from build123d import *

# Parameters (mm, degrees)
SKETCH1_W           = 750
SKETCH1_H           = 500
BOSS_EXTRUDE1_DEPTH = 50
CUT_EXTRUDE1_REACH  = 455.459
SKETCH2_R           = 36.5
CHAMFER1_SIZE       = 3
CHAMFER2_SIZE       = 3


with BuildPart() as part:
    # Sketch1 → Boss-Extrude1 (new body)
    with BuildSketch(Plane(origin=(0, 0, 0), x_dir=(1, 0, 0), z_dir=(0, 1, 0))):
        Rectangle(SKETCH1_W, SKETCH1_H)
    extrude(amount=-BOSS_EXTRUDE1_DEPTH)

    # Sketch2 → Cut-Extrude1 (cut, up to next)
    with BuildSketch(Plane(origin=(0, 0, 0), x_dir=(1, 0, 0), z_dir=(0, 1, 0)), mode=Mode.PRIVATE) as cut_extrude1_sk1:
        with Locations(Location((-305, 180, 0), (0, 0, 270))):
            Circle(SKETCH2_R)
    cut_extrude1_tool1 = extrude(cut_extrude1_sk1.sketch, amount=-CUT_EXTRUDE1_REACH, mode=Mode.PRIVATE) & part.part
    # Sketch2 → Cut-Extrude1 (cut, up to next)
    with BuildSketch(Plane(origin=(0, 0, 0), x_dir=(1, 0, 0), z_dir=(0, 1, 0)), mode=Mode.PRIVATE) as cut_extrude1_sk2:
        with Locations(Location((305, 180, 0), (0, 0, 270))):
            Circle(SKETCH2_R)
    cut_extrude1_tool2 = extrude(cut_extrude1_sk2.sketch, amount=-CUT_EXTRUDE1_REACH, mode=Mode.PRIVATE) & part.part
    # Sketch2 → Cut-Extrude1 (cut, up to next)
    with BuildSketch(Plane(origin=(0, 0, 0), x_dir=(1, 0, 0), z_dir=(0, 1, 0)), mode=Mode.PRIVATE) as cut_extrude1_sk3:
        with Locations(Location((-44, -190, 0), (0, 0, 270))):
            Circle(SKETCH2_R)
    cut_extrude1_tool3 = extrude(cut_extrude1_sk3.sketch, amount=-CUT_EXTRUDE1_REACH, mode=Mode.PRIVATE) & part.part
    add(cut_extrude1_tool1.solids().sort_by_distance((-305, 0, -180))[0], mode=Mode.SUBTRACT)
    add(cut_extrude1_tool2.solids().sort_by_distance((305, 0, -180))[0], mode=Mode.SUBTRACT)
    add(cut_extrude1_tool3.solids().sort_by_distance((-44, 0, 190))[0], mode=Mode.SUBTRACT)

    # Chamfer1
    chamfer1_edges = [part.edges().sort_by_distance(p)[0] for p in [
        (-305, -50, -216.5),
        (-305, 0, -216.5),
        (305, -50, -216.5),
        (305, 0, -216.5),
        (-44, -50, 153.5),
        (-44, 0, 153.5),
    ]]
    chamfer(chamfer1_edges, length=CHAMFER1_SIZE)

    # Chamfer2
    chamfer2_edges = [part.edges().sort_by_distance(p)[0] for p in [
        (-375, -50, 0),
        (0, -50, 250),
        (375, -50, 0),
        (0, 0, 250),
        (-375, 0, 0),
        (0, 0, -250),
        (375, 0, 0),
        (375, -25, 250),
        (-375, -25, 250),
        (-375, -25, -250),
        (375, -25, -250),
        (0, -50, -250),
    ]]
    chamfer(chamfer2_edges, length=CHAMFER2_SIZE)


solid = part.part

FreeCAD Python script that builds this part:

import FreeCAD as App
import Part
import Sketcher

V = App.Vector


def edges_at(feature, points):
    """Names of the edges that pass closest to the given points."""
    edges = feature.Shape.Edges
    near = lambda p: min(range(len(edges)), key=lambda i: edges[i].distToShape(Part.Vertex(*p))[0])
    return sorted({f"Edge{near(p) + 1}" for p in points})

doc = App.newDocument("Part")
body = doc.addObject("PartDesign::Body", "Body")

sketch1 = body.newObject("Sketcher::SketchObject", "Sketch")
sketch1.AttachmentSupport = (doc.getObject("XZ_Plane"), [""])
sketch1.MapMode = "FlatFace"
sketch1.addGeometry(Part.LineSegment(V(-375, -250, 0), V(-375, 250, 0)), False)
sketch1.addGeometry(Part.LineSegment(V(-375, 250, 0), V(375, 250, 0)), False)
sketch1.addGeometry(Part.LineSegment(V(375, 250, 0), V(375, -250, 0)), False)
sketch1.addGeometry(Part.LineSegment(V(375, -250, 0), V(-375, -250, 0)), False)
sketch1.addConstraint(Sketcher.Constraint("Coincident", 0, 2, 1, 1))
sketch1.addConstraint(Sketcher.Constraint("Coincident", 1, 2, 2, 1))
sketch1.addConstraint(Sketcher.Constraint("Coincident", 2, 2, 3, 1))
sketch1.addConstraint(Sketcher.Constraint("Coincident", 3, 2, 0, 1))
sketch1.addConstraint(Sketcher.Constraint("Vertical", 0))
sketch1.addConstraint(Sketcher.Constraint("Horizontal", 1))
sketch1.addConstraint(Sketcher.Constraint("Vertical", 2))
sketch1.addConstraint(Sketcher.Constraint("Horizontal", 3))
sketch1.addConstraint(Sketcher.Constraint("Symmetric", 0, 2, 2, 2, -1, 1))
sketch1.addConstraint(Sketcher.Constraint("DistanceX", 1, 1, 1, 2, 750.0))
sketch1.addConstraint(Sketcher.Constraint("DistanceY", 0, 1, 0, 2, 500.0))
pad1 = body.newObject("PartDesign::Pad", "Pad")
pad1.Profile = sketch1
pad1.Length = 50

sketch2 = body.newObject("Sketcher::SketchObject", "Sketch001")
sketch2.AttachmentSupport = (doc.getObject("XZ_Plane"), [""])
sketch2.MapMode = "FlatFace"
sketch2.addGeometry(Part.Circle(V(-305, -180, 0), V(0, 0, 1), 36), False)
sketch2.addConstraint(Sketcher.Constraint("Diameter", 0, 73.0))
sketch2.addConstraint(Sketcher.Constraint("DistanceX", 0, 3, -1, 1, 305.0))
sketch2.addConstraint(Sketcher.Constraint("DistanceY", 0, 3, -1, 1, 180.0))
pocket1 = body.newObject("PartDesign::Pocket", "Pocket")
pocket1.Profile = sketch2
pocket1.Type = "UpToFirst"
pocket1.Reversed = True

sketch3 = body.newObject("Sketcher::SketchObject", "Sketch002")
sketch3.AttachmentSupport = (doc.getObject("XZ_Plane"), [""])
sketch3.MapMode = "FlatFace"
sketch3.addGeometry(Part.Circle(V(305, -180, 0), V(0, 0, 1), 36), False)
sketch3.addConstraint(Sketcher.Constraint("Diameter", 0, 73.0))
sketch3.addConstraint(Sketcher.Constraint("DistanceX", -1, 1, 0, 3, 305.0))
sketch3.addConstraint(Sketcher.Constraint("DistanceY", 0, 3, -1, 1, 180.0))
pocket2 = body.newObject("PartDesign::Pocket", "Pocket001")
pocket2.Profile = sketch3
pocket2.Type = "UpToFirst"
pocket2.Reversed = True

sketch4 = body.newObject("Sketcher::SketchObject", "Sketch003")
sketch4.AttachmentSupport = (doc.getObject("XZ_Plane"), [""])
sketch4.MapMode = "FlatFace"
sketch4.addGeometry(Part.Circle(V(-44, 190, 0), V(0, 0, 1), 36), False)
sketch4.addConstraint(Sketcher.Constraint("Diameter", 0, 73.0))
sketch4.addConstraint(Sketcher.Constraint("DistanceX", 0, 3, -1, 1, 44.0))
sketch4.addConstraint(Sketcher.Constraint("DistanceY", -1, 1, 0, 3, 190.0))
pocket3 = body.newObject("PartDesign::Pocket", "Pocket002")
pocket3.Profile = sketch4
pocket3.Type = "UpToFirst"
pocket3.Reversed = True
doc.recompute()

chamfer = body.newObject("PartDesign::Chamfer", "Chamfer")
chamfer.Base = (pocket3, edges_at(pocket3, [
    (-305, -50, -216.5),
    (-305, 0, -216.5),
    (305, -50, -216.5),
    (305, 0, -216.5),
    (-44, -50, 153.5),
    (-44, 0, 153.5),
]))
chamfer.Size = 3
doc.recompute()

chamfer2 = body.newObject("PartDesign::Chamfer", "Chamfer001")
chamfer2.Base = (chamfer, edges_at(chamfer, [
    (-375, -50, 0),
    (0, -50, 250),
    (375, -50, 0),
    (0, 0, 250),
    (-375, 0, 0),
    (0, 0, -250),
    (375, 0, 0),
    (375, -25, 250),
    (-375, -25, 250),
    (-375, -25, -250),
    (375, -25, -250),
    (0, -50, -250),
]))
chamfer2.Size = 3

doc.recompute()
